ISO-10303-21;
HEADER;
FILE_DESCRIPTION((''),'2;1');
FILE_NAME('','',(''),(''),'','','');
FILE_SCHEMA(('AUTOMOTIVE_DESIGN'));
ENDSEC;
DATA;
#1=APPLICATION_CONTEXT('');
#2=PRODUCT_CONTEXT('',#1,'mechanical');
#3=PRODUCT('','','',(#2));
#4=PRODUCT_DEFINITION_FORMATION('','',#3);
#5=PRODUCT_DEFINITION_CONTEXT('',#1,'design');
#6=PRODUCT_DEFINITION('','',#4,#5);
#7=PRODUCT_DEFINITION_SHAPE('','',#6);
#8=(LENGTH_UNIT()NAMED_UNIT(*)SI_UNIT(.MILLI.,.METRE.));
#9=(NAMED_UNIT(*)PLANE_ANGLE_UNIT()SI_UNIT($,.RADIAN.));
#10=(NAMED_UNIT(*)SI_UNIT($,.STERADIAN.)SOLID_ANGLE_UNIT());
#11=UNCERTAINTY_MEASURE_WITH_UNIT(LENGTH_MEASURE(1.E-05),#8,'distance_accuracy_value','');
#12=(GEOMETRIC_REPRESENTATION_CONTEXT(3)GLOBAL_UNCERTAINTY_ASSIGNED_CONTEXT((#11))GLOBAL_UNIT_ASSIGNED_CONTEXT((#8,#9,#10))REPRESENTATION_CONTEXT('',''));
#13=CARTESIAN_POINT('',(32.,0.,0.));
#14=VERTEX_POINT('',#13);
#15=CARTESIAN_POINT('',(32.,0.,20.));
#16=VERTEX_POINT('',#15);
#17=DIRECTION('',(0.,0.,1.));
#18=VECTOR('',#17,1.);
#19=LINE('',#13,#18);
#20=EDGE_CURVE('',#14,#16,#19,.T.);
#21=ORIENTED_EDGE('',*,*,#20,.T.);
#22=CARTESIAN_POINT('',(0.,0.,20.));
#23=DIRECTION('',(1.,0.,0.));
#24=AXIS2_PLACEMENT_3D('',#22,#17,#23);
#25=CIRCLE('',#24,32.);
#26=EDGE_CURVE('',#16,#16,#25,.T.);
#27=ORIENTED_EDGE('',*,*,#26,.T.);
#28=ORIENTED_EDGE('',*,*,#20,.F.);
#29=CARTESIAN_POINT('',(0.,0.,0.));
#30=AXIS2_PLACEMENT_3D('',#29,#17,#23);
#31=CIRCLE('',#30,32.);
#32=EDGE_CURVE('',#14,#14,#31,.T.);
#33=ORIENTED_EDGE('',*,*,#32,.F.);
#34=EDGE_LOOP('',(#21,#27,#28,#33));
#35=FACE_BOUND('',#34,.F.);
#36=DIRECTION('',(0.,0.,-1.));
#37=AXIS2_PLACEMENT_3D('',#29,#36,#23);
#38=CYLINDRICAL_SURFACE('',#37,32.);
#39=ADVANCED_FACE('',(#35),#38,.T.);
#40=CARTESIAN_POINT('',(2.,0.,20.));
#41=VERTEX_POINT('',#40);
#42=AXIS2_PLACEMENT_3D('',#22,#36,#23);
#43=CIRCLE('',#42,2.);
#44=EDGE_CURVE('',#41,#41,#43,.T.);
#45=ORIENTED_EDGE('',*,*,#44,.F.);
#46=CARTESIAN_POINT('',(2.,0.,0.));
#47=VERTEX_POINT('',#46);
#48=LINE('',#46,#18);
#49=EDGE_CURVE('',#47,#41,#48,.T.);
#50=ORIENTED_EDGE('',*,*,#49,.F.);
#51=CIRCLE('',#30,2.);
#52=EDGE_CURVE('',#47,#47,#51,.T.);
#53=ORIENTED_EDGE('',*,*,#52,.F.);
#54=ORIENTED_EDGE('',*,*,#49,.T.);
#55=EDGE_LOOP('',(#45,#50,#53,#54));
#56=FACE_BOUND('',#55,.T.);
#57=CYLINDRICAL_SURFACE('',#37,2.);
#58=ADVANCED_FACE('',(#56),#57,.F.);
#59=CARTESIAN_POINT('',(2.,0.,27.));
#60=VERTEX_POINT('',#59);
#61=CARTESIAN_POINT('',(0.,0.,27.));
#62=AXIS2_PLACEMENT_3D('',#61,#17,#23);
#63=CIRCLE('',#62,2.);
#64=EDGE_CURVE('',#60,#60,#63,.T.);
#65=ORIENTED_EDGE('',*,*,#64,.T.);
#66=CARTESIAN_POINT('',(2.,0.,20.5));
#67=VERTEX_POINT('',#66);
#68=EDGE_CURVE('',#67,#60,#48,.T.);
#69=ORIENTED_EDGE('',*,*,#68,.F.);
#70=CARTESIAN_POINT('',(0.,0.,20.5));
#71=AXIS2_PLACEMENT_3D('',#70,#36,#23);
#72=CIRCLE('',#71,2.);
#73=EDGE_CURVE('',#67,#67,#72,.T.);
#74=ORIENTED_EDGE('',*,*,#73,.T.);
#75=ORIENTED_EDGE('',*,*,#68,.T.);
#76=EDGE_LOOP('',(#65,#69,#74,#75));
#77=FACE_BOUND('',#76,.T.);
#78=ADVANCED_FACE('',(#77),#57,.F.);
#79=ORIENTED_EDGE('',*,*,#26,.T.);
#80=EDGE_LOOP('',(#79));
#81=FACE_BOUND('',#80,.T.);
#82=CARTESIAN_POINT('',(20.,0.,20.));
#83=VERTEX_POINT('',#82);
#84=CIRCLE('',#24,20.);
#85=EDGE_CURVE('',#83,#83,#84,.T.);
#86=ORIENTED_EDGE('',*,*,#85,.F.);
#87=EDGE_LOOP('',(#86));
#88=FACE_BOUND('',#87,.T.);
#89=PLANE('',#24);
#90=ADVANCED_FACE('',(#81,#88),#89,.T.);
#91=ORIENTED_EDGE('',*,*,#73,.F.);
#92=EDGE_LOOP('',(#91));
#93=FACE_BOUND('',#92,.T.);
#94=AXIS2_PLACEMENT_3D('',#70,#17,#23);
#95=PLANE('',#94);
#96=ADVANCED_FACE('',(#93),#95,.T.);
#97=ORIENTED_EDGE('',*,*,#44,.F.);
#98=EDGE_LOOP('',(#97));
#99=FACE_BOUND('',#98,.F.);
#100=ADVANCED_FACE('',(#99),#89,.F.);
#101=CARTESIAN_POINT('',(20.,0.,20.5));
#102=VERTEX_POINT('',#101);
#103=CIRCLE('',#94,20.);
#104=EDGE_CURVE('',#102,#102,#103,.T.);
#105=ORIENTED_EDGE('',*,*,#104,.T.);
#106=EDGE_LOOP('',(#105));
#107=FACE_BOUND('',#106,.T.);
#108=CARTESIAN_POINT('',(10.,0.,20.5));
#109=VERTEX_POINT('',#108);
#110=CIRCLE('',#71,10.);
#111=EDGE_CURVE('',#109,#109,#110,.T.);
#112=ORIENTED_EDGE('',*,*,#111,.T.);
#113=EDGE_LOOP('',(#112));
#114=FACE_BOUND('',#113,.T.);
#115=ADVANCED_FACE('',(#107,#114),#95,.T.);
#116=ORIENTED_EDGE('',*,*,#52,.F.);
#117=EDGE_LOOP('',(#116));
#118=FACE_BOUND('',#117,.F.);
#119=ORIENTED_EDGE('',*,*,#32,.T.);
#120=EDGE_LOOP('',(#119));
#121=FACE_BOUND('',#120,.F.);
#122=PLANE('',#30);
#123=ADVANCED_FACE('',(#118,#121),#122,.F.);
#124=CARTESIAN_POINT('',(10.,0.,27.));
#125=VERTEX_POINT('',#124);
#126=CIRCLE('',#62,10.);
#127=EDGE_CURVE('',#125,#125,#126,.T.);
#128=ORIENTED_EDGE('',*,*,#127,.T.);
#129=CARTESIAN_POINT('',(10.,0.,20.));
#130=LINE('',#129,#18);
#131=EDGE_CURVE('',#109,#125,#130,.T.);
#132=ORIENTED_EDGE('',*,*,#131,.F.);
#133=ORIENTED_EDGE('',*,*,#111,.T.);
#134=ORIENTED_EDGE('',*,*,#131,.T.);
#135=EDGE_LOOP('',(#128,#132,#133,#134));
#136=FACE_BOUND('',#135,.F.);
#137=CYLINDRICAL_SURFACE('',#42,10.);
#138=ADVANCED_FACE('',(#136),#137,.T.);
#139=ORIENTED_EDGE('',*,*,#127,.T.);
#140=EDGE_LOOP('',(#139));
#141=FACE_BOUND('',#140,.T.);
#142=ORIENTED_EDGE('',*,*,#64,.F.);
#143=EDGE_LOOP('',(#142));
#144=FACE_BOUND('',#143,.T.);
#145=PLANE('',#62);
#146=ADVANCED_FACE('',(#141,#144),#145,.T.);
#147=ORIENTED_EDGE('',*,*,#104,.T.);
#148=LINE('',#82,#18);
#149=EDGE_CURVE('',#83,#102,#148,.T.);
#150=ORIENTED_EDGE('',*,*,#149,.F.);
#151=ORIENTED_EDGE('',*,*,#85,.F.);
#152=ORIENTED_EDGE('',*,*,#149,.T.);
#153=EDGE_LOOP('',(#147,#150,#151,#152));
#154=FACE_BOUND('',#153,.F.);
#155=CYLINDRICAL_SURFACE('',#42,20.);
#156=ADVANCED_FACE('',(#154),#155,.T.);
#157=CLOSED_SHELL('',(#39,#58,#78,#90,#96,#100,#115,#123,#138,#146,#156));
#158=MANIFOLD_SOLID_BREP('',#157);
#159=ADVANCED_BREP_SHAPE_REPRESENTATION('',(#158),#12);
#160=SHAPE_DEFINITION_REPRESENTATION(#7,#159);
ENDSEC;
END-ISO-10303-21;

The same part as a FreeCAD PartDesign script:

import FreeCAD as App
import Part
import Sketcher

V = App.Vector
Q = App.Units.Quantity

doc = App.newDocument("Part")
body = doc.addObject("PartDesign::Body", "Body")

# Sketch on XY plane
sketch1 = body.newObject("Sketcher::SketchObject", "Sketch")
sketch1.AttachmentSupport = (doc.getObject("XY_Plane"), [""])
sketch1.MapMode = "FlatFace"
sketch1.addGeometry([
    Part.Circle(V(0, 0, 0), V(0, 0, 1), 32),
    Part.Circle(V(0, 0, 0), V(0, 0, 1), 2),
], False)
sketch1.addConstraint([
    Sketcher.Constraint("Coincident", 0, 3, -1, 1),
    Sketcher.Constraint("Coincident", 1, 3, -1, 1),
    Sketcher.Constraint("Diameter", 0, Q("64 mm")),
    Sketcher.Constraint("Diameter", 1, Q("4 mm")),
])
pad1 = body.newObject("PartDesign::Pad", "Pad")
pad1.Profile = sketch1
pad1.Length = 20

# Sketch on XY plane
sketch2 = body.newObject("Sketcher::SketchObject", "Sketch001")
sketch2.AttachmentSupport = (doc.getObject("XY_Plane"), [""])
sketch2.MapMode = "FlatFace"
sketch2.AttachmentOffset = App.Placement(V(0, 0, 20), App.Rotation())
sketch2.addGeometry([
    Part.Circle(V(0, 0, 0), V(0, 0, 1), 10),
    Part.Circle(V(0, 0, 0), V(0, 0, 1), 2),
], False)
sketch2.addConstraint([
    Sketcher.Constraint("Coincident", 0, 3, -1, 1),
    Sketcher.Constraint("Coincident", 1, 3, -1, 1),
    Sketcher.Constraint("Diameter", 0, Q("20 mm")),
    Sketcher.Constraint("Diameter", 1, Q("4 mm")),
])
pad2 = body.newObject("PartDesign::Pad", "Pad001")
pad2.Profile = sketch2
pad2.Length = 7

# Sketch on XY plane
sketch3 = body.newObject("Sketcher::SketchObject", "Sketch002")
sketch3.AttachmentSupport = (doc.getObject("XY_Plane"), [""])
sketch3.MapMode = "FlatFace"
sketch3.AttachmentOffset = App.Placement(V(0, 0, 20), App.Rotation())
sketch3.addGeometry(Part.Circle(V(0, 0, 0), V(0, 0, 1), 20), False)
sketch3.addConstraint([
    Sketcher.Constraint("Coincident", 0, 3, -1, 1),
    Sketcher.Constraint("Diameter", 0, Q("40 mm")),
])
pad3 = body.newObject("PartDesign::Pad", "Pad002")
pad3.Profile = sketch3
pad3.Length = 0.5

doc.recompute()
